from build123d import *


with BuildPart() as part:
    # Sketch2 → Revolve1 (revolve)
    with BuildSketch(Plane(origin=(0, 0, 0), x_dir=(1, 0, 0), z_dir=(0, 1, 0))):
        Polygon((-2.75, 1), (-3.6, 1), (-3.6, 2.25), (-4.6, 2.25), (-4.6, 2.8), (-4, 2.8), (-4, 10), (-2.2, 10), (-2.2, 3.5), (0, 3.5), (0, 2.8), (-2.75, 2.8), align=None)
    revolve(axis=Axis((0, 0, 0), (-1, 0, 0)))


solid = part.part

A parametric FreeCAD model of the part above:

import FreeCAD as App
import Part
import Sketcher

V = App.Vector
Q = App.Units.Quantity


def add_polygon(sketch, points):
    """Adds a closed chain of lines whose ends are joined by coincident constraints."""
    first, n = sketch.GeometryCount, len(points)
    for a, b in zip(points, points[1:] + points[:1]):
        sketch.addGeometry(Part.LineSegment(App.Vector(*a, 0), App.Vector(*b, 0)), False)
    for i in range(n):
        sketch.addConstraint(Sketcher.Constraint("Coincident", first + i, 2, first + (i + 1) % n, 1))

doc = App.newDocument("Part")
body = doc.addObject("PartDesign::Body", "Body")

# Sketch on XZ plane
sketch1 = body.newObject("Sketcher::SketchObject", "Sketch")
sketch1.AttachmentSupport = (doc.getObject("XZ_Plane"), [""])
sketch1.MapMode = "FlatFace"
add_polygon(sketch1, [(-3.6, -1), (-2.8, -1), (-2.8, -2.8), (0, -2.8), (0, -3.5), (-2.2, -3.5), (-2.2, -10), (-4, -10), (-4, -2.8), (-4.6, -2.8), (-4.6, -2.2), (-3.6, -2.2)])  # lines 0-11
sketch1.addConstraint([
    Sketcher.Constraint("Horizontal", 0),
    Sketcher.Constraint("Vertical", 1),
    Sketcher.Constraint("Horizontal", 2),
    Sketcher.Constraint("Vertical", 3),
    Sketcher.Constraint("Horizontal", 4),
    Sketcher.Constraint("Vertical", 5),
    Sketcher.Constraint("Horizontal", 6),
    Sketcher.Constraint("Vertical", 7),
    Sketcher.Constraint("Horizontal", 8),
    Sketcher.Constraint("Vertical", 9),
    Sketcher.Constraint("Horizontal", 10),
    Sketcher.Constraint("Vertical", 11),
    Sketcher.Constraint("PointOnObject", 2, 2, -2),
    Sketcher.Constraint("Horizontal", 2, 2, 7, 2),
    Sketcher.Constraint("Equal", 6, 1),
    Sketcher.Constraint("DistanceX", 10, 1, 10, 2, Q("1 mm")),
    Sketcher.Constraint("DistanceX", 4, 2, 4, 1, Q("2.2 mm")),
    Sketcher.Constraint("DistanceX", 6, 2, 6, 1, Q("1.8 mm")),
    Sketcher.Constraint("DistanceX", 8, 2, 8, 1, Q("0.6 mm")),
    Sketcher.Constraint("DistanceY", 3, 2, 3, 1, Q("0.7 mm")),
    Sketcher.Constraint("DistanceY", 5, 2, 5, 1, Q("6.5 mm")),
    Sketcher.Constraint("DistanceY", 0, 2, -1, 1, Q("1 mm")),
    Sketcher.Constraint("DistanceX", 0, 1, 0, 2, Q("0.85 mm")),
    Sketcher.Constraint("DistanceY", 9, 1, 9, 2, Q("0.55 mm")),
])
revolution = body.newObject("PartDesign::Revolution", "Revolution")
revolution.Profile = sketch1
revolution.ReferenceAxis = (sketch1, ["H_Axis"])
revolution.Angle = 360

doc.recompute()
